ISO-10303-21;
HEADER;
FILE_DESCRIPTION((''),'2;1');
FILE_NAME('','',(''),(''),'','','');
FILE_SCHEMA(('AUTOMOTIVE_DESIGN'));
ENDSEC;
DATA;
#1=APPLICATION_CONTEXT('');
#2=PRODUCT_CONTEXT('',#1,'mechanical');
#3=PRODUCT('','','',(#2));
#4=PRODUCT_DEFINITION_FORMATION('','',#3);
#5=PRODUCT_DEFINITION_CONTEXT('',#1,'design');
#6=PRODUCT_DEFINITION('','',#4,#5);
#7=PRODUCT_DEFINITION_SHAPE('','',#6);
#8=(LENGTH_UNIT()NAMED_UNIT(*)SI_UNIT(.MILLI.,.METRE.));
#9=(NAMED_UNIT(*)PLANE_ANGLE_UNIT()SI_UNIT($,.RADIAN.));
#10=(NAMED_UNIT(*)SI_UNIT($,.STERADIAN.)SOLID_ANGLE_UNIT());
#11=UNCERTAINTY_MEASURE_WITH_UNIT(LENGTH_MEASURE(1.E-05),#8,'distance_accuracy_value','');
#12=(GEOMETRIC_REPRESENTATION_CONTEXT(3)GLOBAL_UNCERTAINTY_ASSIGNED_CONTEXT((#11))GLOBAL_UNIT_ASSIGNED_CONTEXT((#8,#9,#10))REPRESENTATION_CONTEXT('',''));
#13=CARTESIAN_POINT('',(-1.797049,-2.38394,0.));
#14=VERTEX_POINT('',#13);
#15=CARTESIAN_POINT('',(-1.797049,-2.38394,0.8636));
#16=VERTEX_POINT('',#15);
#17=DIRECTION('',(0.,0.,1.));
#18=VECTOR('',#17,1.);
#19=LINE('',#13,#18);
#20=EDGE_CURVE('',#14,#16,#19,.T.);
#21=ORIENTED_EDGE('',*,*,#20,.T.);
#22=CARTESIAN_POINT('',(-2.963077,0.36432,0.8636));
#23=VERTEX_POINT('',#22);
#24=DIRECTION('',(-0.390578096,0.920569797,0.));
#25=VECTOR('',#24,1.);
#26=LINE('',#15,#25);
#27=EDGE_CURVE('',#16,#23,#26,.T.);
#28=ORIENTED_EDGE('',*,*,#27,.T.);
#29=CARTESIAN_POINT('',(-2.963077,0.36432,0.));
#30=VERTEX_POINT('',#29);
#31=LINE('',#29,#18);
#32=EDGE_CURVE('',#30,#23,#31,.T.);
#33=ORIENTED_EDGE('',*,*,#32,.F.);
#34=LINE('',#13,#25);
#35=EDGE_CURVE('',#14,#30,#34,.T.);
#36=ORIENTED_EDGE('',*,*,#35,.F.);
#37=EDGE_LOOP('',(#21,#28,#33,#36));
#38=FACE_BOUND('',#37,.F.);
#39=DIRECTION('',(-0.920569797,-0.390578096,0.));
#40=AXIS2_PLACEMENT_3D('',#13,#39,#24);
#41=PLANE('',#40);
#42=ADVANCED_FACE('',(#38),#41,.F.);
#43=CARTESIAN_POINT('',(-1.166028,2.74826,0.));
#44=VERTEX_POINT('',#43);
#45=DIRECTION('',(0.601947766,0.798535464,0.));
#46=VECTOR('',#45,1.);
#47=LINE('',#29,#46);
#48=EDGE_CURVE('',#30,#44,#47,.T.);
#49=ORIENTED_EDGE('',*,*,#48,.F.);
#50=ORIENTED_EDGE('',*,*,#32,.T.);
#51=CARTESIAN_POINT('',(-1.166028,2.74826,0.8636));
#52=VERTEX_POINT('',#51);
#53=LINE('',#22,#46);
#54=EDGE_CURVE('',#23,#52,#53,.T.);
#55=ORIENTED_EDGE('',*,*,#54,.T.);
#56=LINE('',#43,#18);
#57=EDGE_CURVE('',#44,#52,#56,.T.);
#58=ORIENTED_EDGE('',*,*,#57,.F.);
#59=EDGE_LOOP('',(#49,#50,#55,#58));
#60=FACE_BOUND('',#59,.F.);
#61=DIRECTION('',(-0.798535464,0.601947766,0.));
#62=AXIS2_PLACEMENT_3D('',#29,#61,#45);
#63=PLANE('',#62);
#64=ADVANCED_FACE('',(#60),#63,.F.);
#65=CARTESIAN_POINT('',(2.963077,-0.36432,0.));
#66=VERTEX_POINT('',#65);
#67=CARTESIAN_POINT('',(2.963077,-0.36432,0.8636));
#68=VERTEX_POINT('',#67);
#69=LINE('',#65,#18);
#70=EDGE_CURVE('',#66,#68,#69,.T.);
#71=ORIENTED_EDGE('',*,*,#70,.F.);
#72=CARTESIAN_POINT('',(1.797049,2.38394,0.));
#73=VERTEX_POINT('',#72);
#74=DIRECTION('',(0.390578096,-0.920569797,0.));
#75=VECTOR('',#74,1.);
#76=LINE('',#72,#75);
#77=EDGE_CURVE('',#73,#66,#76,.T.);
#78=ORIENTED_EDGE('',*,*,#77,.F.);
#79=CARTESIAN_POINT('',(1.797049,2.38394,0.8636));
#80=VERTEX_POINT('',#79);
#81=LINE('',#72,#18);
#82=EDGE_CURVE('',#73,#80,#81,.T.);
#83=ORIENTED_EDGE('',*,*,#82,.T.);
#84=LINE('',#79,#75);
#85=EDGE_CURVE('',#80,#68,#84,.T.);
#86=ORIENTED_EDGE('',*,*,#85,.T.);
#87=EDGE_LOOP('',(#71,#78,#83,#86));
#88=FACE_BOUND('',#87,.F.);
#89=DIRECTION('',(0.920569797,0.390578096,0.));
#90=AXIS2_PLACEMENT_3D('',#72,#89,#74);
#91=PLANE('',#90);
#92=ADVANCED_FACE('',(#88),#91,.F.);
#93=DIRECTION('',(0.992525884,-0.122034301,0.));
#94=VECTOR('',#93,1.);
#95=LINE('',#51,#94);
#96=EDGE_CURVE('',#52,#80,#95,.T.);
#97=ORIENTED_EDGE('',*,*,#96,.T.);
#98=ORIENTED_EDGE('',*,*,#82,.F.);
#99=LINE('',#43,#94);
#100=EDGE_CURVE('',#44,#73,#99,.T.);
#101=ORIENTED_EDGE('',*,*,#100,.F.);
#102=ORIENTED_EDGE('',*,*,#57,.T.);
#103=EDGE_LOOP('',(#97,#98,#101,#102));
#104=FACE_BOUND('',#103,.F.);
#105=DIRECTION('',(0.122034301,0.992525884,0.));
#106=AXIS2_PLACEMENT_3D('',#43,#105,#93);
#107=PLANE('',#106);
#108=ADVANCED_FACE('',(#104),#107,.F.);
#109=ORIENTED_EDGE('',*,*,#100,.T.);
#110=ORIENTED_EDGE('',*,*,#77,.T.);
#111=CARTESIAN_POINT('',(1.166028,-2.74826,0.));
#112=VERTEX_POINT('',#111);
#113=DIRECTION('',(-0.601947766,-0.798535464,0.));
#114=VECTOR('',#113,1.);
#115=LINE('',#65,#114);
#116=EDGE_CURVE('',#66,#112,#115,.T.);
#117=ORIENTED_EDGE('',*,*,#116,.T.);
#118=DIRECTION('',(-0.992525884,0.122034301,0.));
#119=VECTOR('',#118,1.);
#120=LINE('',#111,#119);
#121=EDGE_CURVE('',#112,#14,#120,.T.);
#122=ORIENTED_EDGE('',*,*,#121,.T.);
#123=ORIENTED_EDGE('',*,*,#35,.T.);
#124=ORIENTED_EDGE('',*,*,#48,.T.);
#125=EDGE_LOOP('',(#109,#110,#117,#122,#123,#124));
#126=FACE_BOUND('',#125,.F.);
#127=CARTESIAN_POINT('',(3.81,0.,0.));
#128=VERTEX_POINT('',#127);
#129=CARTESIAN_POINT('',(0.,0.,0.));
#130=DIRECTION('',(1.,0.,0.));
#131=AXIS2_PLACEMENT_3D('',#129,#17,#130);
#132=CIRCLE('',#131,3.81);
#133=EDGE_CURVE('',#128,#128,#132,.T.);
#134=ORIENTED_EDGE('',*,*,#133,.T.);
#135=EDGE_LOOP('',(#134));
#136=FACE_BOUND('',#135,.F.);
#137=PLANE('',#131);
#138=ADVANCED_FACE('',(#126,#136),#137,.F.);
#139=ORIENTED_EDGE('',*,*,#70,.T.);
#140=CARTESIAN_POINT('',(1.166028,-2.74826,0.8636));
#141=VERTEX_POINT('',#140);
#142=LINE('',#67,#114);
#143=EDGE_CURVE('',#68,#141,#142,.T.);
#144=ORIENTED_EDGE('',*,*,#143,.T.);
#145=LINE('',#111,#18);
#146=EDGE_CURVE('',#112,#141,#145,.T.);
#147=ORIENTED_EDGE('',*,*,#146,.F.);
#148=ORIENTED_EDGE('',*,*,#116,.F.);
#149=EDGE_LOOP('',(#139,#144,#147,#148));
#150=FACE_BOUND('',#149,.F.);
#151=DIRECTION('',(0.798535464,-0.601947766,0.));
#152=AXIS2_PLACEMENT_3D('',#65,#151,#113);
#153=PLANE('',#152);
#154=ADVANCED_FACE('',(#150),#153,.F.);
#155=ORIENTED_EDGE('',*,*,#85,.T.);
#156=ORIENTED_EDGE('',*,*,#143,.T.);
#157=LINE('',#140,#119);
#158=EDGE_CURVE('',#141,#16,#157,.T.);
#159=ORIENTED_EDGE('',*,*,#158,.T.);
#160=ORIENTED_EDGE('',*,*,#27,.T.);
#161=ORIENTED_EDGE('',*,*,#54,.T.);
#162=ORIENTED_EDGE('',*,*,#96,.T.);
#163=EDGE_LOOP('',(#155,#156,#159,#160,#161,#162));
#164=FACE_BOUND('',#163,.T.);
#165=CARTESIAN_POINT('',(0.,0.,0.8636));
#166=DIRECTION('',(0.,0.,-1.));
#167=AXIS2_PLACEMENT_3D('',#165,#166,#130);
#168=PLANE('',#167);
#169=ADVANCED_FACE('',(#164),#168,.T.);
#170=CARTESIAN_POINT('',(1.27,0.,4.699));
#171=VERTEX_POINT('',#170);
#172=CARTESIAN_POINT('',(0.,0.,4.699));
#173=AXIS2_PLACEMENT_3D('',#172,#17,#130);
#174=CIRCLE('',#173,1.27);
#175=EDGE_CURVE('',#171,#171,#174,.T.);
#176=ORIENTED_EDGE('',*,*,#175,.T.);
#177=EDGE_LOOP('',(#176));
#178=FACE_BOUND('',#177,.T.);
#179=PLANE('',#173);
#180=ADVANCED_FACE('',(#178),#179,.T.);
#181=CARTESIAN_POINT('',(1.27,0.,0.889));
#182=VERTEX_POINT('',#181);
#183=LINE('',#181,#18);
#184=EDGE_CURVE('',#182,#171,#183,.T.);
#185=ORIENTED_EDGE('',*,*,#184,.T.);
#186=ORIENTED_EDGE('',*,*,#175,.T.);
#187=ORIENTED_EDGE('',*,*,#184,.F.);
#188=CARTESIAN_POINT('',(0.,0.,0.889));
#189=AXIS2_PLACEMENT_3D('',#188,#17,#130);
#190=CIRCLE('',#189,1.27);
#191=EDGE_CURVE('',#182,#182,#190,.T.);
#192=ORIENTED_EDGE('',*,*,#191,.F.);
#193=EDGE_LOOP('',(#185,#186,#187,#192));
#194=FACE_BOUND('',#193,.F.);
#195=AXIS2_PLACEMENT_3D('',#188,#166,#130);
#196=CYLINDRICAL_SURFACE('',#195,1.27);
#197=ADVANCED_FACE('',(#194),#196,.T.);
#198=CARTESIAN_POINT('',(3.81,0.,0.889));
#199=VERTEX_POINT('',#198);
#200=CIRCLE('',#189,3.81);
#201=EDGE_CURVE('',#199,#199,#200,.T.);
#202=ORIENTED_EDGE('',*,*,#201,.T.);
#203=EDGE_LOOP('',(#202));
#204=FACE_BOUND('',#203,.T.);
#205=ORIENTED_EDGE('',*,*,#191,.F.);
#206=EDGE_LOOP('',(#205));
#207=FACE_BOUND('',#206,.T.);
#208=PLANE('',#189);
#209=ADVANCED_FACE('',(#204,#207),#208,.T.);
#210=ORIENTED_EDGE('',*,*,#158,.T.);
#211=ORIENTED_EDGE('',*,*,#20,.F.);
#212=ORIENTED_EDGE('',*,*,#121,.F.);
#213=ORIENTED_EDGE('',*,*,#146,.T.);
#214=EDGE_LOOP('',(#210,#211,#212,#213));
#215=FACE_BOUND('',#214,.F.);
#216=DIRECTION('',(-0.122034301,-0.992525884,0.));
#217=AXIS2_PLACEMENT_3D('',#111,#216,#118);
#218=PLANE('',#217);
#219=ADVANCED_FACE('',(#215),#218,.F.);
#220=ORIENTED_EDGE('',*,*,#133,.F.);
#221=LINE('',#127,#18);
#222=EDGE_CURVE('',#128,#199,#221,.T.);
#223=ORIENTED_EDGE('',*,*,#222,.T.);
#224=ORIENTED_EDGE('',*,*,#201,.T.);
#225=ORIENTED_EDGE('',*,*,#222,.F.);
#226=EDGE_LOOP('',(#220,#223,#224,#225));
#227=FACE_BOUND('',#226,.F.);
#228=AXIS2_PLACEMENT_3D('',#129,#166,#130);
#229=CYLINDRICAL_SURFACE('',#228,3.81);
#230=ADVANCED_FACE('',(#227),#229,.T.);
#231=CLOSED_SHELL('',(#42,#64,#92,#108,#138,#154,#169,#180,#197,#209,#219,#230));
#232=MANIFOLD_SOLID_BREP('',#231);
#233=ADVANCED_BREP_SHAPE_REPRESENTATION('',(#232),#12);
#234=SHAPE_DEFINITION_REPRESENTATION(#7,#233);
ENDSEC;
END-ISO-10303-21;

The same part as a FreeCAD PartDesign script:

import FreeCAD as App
import Part
import Sketcher
from FreeCAD import Vector
Q = App.Units.Quantity


def add_polygon(sketch, points):
    """Adds a closed chain of lines whose ends are joined by coincident constraints."""
    first, n = sketch.GeometryCount, len(points)
    for a, b in zip(points, points[1:] + points[:1]):
        sketch.addGeometry(Part.LineSegment(App.Vector(*a, 0), App.Vector(*b, 0)), False)
    for i in range(n):
        sketch.addConstraint(Sketcher.Constraint("Coincident", first + i, 2, first + (i + 1) % n, 1))

doc = App.newDocument("Part")
body = doc.addObject("PartDesign::Body", "Body")

# Sketch on XY plane
sketch1 = body.newObject("Sketcher::SketchObject", "Sketch")
sketch1.AttachmentSupport = (doc.getObject("XY_Plane"), [""])
sketch1.MapMode = "FlatFace"
sketch1.addGeometry(Part.Circle(Vector(0, 0, 0), Vector(0, 0, 1), 3.8), False)
sketch1.addConstraint([
    Sketcher.Constraint("Coincident", 0, 3, -1, 1),
    Sketcher.Constraint("Diameter", 0, Q("0.3 in")),
])
pad1 = body.newObject("PartDesign::Pad", "Pad")
pad1.Profile = sketch1
pad1.Length = Q("0.035 in")

# Sketch on XY plane
sketch2 = body.newObject("Sketcher::SketchObject", "Sketch001")
sketch2.AttachmentSupport = (doc.getObject("XY_Plane"), [""])
sketch2.MapMode = "FlatFace"
sketch2.AttachmentOffset = App.Placement(Vector(0, 0, 0.035 * 25.4), App.Rotation())
sketch2.addGeometry(Part.Circle(Vector(0, 0, 0), Vector(0, 0, 1), 1.3), False)
sketch2.addConstraint([
    Sketcher.Constraint("Coincident", 0, 3, -1, 1),
    Sketcher.Constraint("Diameter", 0, Q("0.1 in")),
])
pad2 = body.newObject("PartDesign::Pad", "Pad001")
pad2.Profile = sketch2
pad2.Length = Q("0.15 in")

# Sketch on XY plane
sketch3 = body.newObject("Sketcher::SketchObject", "Sketch002")
sketch3.AttachmentSupport = (doc.getObject("XY_Plane"), [""])
sketch3.MapMode = "FlatFace"
add_polygon(sketch3, [(3, -0.4), (1.2, -2.7), (-1.8, -2.4), (-3, 0.4), (-1.2, 2.7), (1.8, 2.4)])  # lines 0-5
sketch3.addConstraint([
    Sketcher.Constraint("Symmetric", 0, 2, 3, 2, -1, 1),
    Sketcher.Constraint("Symmetric", 1, 2, 4, 2, -1, 1),
    Sketcher.Constraint("Symmetric", 2, 2, 5, 2, -1, 1),
    Sketcher.Constraint("Equal", 0, 1),
    Sketcher.Constraint("Equal", 1, 2),
    Sketcher.Constraint("DistanceX", 1, 2, 4, 2, Q("0.1414999 in")),
    Sketcher.Constraint("DistanceY", 1, 2, 3, 2, Q("5.1322 mm")),
    Sketcher.Constraint("Distance", 0, Q("2.98539 mm")),
    Sketcher.Constraint("DistanceX", -1, 1, 0, 2, Q("1.166028 mm")),
])
pocket1 = body.newObject("PartDesign::Pocket", "Pocket")
pocket1.Profile = sketch3
pocket1.Length = Q("0.034 in")
pocket1.Reversed = True

doc.recompute()
